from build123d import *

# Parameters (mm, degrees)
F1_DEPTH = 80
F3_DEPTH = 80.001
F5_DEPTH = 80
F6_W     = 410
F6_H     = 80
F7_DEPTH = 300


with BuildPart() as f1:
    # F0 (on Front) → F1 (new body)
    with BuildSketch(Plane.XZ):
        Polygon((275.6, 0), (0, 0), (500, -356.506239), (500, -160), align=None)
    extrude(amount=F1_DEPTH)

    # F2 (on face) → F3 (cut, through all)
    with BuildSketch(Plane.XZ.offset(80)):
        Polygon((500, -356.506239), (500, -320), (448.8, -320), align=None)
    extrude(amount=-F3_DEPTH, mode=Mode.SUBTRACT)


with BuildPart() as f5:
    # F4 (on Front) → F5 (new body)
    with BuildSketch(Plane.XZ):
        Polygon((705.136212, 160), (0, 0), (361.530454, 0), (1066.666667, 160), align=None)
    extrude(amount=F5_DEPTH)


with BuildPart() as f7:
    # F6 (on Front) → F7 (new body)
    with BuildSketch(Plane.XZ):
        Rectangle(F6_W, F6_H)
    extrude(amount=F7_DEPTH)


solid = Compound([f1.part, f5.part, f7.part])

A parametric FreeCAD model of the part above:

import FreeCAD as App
import Part
import Sketcher
from FreeCAD import Vector

doc = App.newDocument("Part")
body = doc.addObject("PartDesign::Body", "Body")

# Sketch on XZ plane
sketch1 = body.newObject("Sketcher::SketchObject", "Sketch")
sketch1.AttachmentSupport = (doc.getObject("XZ_Plane"), [""])
sketch1.MapMode = "FlatFace"
sketch1.addGeometry(Part.LineSegment(Vector(276, 0, 0), Vector(0, 0, 0)), False)
sketch1.addGeometry(Part.LineSegment(Vector(0, 0, 0), Vector(500, -357, 0)), False)
sketch1.addGeometry(Part.LineSegment(Vector(500, -357, 0), Vector(500, -160, 0)), False)
sketch1.addGeometry(Part.LineSegment(Vector(500, -160, 0), Vector(276, 0, 0)), False)
sketch1.addConstraint(Sketcher.Constraint("Coincident", 0, 2, 1, 1))
sketch1.addConstraint(Sketcher.Constraint("Coincident", 1, 2, 2, 1))
sketch1.addConstraint(Sketcher.Constraint("Coincident", 2, 2, 3, 1))
sketch1.addConstraint(Sketcher.Constraint("Coincident", 3, 2, 0, 1))
sketch1.addConstraint(Sketcher.Constraint("Horizontal", 0))
sketch1.addConstraint(Sketcher.Constraint("Vertical", 2))
sketch1.addConstraint(Sketcher.Constraint("Coincident", 0, 2, -1, 1))
sketch1.addConstraint(Sketcher.Constraint("Parallel", 1, 3))
sketch1.addConstraint(Sketcher.Constraint("DistanceX", 0, 2, 0, 1, 275.6))
sketch1.addConstraint(Sketcher.Constraint("DistanceX", -1, 1, 1, 2, 500.0))
sketch1.addConstraint(Sketcher.Constraint("DistanceY", 2, 2, -1, 1, 160.0))
pad1 = body.newObject("PartDesign::Pad", "Pad")
pad1.Profile = sketch1
pad1.Length = 80

# Sketch on XZ plane
sketch2 = body.newObject("Sketcher::SketchObject", "Sketch001")
sketch2.AttachmentSupport = (doc.getObject("XZ_Plane"), [""])
sketch2.MapMode = "FlatFace"
sketch2.AttachmentOffset = App.Placement(Vector(0, 0, 80), App.Rotation())
sketch2.addGeometry(Part.LineSegment(Vector(500, -357, 0), Vector(500, -320, 0)), False)
sketch2.addGeometry(Part.LineSegment(Vector(500, -320, 0), Vector(449, -320, 0)), False)
sketch2.addGeometry(Part.LineSegment(Vector(449, -320, 0), Vector(500, -357, 0)), False)
sketch2.addConstraint(Sketcher.Constraint("Coincident", 0, 2, 1, 1))
sketch2.addConstraint(Sketcher.Constraint("Coincident", 1, 2, 2, 1))
sketch2.addConstraint(Sketcher.Constraint("Coincident", 2, 2, 0, 1))
sketch2.addConstraint(Sketcher.Constraint("Vertical", 0))
sketch2.addConstraint(Sketcher.Constraint("Horizontal", 1))
sketch2.addConstraint(Sketcher.Constraint("DistanceX", 1, 2, 1, 1, 51.2))
sketch2.addConstraint(Sketcher.Constraint("DistanceX", -1, 1, 0, 2, 500.0))
sketch2.addConstraint(Sketcher.Constraint("DistanceY", 0, 2, -1, 1, 320.0))
sketch2.addConstraint(Sketcher.Constraint("DistanceY", 0, 1, 0, 2, 36.506239))
pocket1 = body.newObject("PartDesign::Pocket", "Pocket")
pocket1.Profile = sketch2
pocket1.Type = "ThroughAll"
body2 = doc.addObject("PartDesign::Body", "Body001")

# Sketch on XZ plane
sketch3 = body2.newObject("Sketcher::SketchObject", "Sketch002")
sketch3.AttachmentSupport = (doc.getObject("XZ_Plane001"), [""])
sketch3.MapMode = "FlatFace"
sketch3.addGeometry(Part.LineSegment(Vector(705, 160, 0), Vector(0, 0, 0)), False)
sketch3.addGeometry(Part.LineSegment(Vector(0, 0, 0), Vector(362, 0, 0)), False)
sketch3.addGeometry(Part.LineSegment(Vector(362, 0, 0), Vector(1067, 160, 0)), False)
sketch3.addGeometry(Part.LineSegment(Vector(1067, 160, 0), Vector(705, 160, 0)), False)
sketch3.addConstraint(Sketcher.Constraint("Coincident", 0, 2, 1, 1))
sketch3.addConstraint(Sketcher.Constraint("Coincident", 1, 2, 2, 1))
sketch3.addConstraint(Sketcher.Constraint("Coincident", 2, 2, 3, 1))
sketch3.addConstraint(Sketcher.Constraint("Coincident", 3, 2, 0, 1))
sketch3.addConstraint(Sketcher.Constraint("Horizontal", 1))
sketch3.addConstraint(Sketcher.Constraint("Horizontal", 3))
sketch3.addConstraint(Sketcher.Constraint("Coincident", 0, 2, -1, 1))
sketch3.addConstraint(Sketcher.Constraint("Parallel", 0, 2))
sketch3.addConstraint(Sketcher.Constraint("DistanceY", -1, 1, 2, 2, 160.0))
sketch3.addConstraint(Sketcher.Constraint("Distance", 0, 723.060909))
sketch3.addConstraint(Sketcher.Constraint("DistanceX", 1, 1, 1, 2, 361.530454))
pad2 = body2.newObject("PartDesign::Pad", "Pad001")
pad2.Profile = sketch3
pad2.Length = 80
body3 = doc.addObject("PartDesign::Body", "Body002")

# Sketch on XZ plane
sketch4 = body3.newObject("Sketcher::SketchObject", "Sketch003")
sketch4.AttachmentSupport = (doc.getObject("XZ_Plane002"), [""])
sketch4.MapMode = "FlatFace"
sketch4.addGeometry(Part.LineSegment(Vector(-205, 40, 0), Vector(-205, -40, 0)), False)
sketch4.addGeometry(Part.LineSegment(Vector(-205, -40, 0), Vector(205, -40, 0)), False)
sketch4.addGeometry(Part.LineSegment(Vector(205, -40, 0), Vector(205, 40, 0)), False)
sketch4.addGeometry(Part.LineSegment(Vector(205, 40, 0), Vector(-205, 40, 0)), False)
sketch4.addConstraint(Sketcher.Constraint("Coincident", 0, 2, 1, 1))
sketch4.addConstraint(Sketcher.Constraint("Coincident", 1, 2, 2, 1))
sketch4.addConstraint(Sketcher.Constraint("Coincident", 2, 2, 3, 1))
sketch4.addConstraint(Sketcher.Constraint("Coincident", 3, 2, 0, 1))
sketch4.addConstraint(Sketcher.Constraint("Vertical", 0))
sketch4.addConstraint(Sketcher.Constraint("Horizontal", 1))
sketch4.addConstraint(Sketcher.Constraint("Vertical", 2))
sketch4.addConstraint(Sketcher.Constraint("Horizontal", 3))
sketch4.addConstraint(Sketcher.Constraint("Symmetric", 0, 2, 2, 2, -1, 1))
sketch4.addConstraint(Sketcher.Constraint("DistanceX", 1, 1, 1, 2, 410.0))
sketch4.addConstraint(Sketcher.Constraint("DistanceY", 0, 2, 0, 1, 80.0))
pad3 = body3.newObject("PartDesign::Pad", "Pad002")
pad3.Profile = sketch4
pad3.Length = 300

doc.recompute()
